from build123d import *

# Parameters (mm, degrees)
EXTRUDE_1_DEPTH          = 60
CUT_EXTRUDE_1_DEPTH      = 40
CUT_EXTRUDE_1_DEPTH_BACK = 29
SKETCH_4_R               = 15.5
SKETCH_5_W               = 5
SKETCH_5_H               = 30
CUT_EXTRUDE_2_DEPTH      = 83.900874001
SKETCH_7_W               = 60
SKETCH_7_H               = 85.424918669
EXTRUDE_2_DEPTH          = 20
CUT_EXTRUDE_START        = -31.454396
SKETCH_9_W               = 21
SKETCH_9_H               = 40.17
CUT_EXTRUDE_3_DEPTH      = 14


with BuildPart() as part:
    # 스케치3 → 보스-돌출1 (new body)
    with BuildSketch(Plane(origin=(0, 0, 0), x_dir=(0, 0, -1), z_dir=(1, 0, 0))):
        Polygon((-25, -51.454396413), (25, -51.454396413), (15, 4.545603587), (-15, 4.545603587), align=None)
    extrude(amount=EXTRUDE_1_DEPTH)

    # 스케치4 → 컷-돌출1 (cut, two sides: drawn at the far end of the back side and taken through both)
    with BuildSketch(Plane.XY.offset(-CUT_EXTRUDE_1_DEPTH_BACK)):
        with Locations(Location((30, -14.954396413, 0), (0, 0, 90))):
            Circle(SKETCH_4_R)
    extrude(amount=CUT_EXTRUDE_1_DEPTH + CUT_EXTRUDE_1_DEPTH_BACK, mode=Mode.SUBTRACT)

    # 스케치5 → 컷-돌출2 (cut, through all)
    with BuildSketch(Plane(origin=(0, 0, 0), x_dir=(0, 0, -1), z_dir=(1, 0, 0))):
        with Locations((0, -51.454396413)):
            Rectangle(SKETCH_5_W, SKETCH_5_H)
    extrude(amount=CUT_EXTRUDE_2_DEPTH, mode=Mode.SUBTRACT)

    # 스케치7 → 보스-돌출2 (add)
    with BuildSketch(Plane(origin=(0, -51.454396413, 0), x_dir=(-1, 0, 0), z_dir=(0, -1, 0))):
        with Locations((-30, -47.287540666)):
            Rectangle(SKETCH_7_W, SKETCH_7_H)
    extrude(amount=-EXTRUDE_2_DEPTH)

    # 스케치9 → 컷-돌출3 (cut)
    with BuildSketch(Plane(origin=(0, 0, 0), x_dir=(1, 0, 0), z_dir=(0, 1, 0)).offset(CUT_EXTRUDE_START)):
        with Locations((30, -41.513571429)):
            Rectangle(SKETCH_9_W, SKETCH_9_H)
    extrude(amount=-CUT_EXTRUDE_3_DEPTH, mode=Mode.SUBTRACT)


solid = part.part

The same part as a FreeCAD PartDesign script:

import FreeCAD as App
import Part
import Sketcher
from FreeCAD import Vector
Q = App.Units.Quantity


def add_polygon(sketch, points):
    """Adds a closed chain of lines whose ends are joined by coincident constraints."""
    first, n = sketch.GeometryCount, len(points)
    for a, b in zip(points, points[1:] + points[:1]):
        sketch.addGeometry(Part.LineSegment(App.Vector(*a, 0), App.Vector(*b, 0)), False)
    for i in range(n):
        sketch.addConstraint(Sketcher.Constraint("Coincident", first + i, 2, first + (i + 1) % n, 1))

doc = App.newDocument("Part")
body = doc.addObject("PartDesign::Body", "Body")

sketch1 = body.newObject("Sketcher::SketchObject", "Sketch")
sketch1.AttachmentSupport = (doc.getObject("YZ_Plane"), [""])
sketch1.MapMode = "FlatFace"
add_polygon(sketch1, [(-51, 25), (-51, -25), (5, -15), (5, 15)])
sketch1.addConstraint([
    Sketcher.Constraint("Vertical", 0),
    Sketcher.Constraint("Vertical", 2),
    Sketcher.Constraint("Equal", 1, 3),
    Sketcher.Constraint("DistanceY", 0, 2, 0, 1, Q("50 mm")),
    Sketcher.Constraint("DistanceY", 2, 1, 2, 2, Q("30 mm")),
    Sketcher.Constraint("DistanceY", 0, 2, -1, 1, Q("25 mm")),
    Sketcher.Constraint("DistanceX", 0, 2, 1, 2, Q("56 mm")),
    Sketcher.Constraint("DistanceX", 0, 2, -1, 1, Q("51.454396 mm")),
])
pad1 = body.newObject("PartDesign::Pad", "Pad")
pad1.Profile = sketch1
pad1.Length = 60

sketch2 = body.newObject("Sketcher::SketchObject", "Sketch001")
sketch2.AttachmentSupport = (doc.getObject("XY_Plane"), [""])
sketch2.MapMode = "FlatFace"
sketch2.addGeometry(Part.Circle(Vector(30, -15, 0), Vector(0, 0, 1), 16), False)
sketch2.addConstraint([
    Sketcher.Constraint("Diameter", 0, Q("31 mm")),
    Sketcher.Constraint("DistanceX", -1, 1, 0, 3, Q("30 mm")),
    Sketcher.Constraint("DistanceY", 0, 3, -1, 1, Q("14.954396 mm")),
])
pocket1 = body.newObject("PartDesign::Pocket", "Pocket")
pocket1.Profile = sketch2
pocket1.Type = "ThroughAll"
pocket1.Midplane = True

sketch3 = body.newObject("Sketcher::SketchObject", "Sketch002")
sketch3.AttachmentSupport = (doc.getObject("YZ_Plane"), [""])
sketch3.MapMode = "FlatFace"
add_polygon(sketch3, [(-36, 2), (-66, 2), (-66, -2), (-36, -2)])
sketch3.addConstraint([
    Sketcher.Constraint("Horizontal", 0),
    Sketcher.Constraint("Vertical", 1),
    Sketcher.Constraint("Horizontal", 2),
    Sketcher.Constraint("Vertical", 3),
    Sketcher.Constraint("DistanceX", 0, 2, 0, 1, Q("30 mm")),
    Sketcher.Constraint("DistanceY", 1, 2, 1, 1, Q("5 mm")),
    Sketcher.Constraint("DistanceY", -1, 1, 0, 2, Q("2.5 mm")),
    Sketcher.Constraint("DistanceX", 0, 2, -1, 1, Q("66.454396 mm")),
])
pocket2 = body.newObject("PartDesign::Pocket", "Pocket001")
pocket2.Profile = sketch3
pocket2.Type = "ThroughAll"
pocket2.Reversed = True

sketch4 = body.newObject("Sketcher::SketchObject", "Sketch003")
sketch4.AttachmentSupport = (doc.getObject("XZ_Plane"), [""])
sketch4.MapMode = "FlatFace"
sketch4.AttachmentOffset = App.Placement(Vector(0, 0, 51.454396), App.Rotation())
add_polygon(sketch4, [(60, 5), (60, 90), (0, 90), (0, 5)])
sketch4.addConstraint([
    Sketcher.Constraint("Vertical", 0),
    Sketcher.Constraint("Horizontal", 1),
    Sketcher.Constraint("Vertical", 2),
    Sketcher.Constraint("Horizontal", 3),
    Sketcher.Constraint("PointOnObject", 1, 2, -2),
    Sketcher.Constraint("DistanceX", 1, 2, 1, 1, Q("60 mm")),
    Sketcher.Constraint("DistanceY", -1, 1, 0, 2, Q("90 mm")),
    Sketcher.Constraint("DistanceY", 0, 1, 0, 2, Q("85.424919 mm")),
])
pad2 = body.newObject("PartDesign::Pad", "Pad001")
pad2.Profile = sketch4
pad2.Length = 20
pad2.Reversed = True

sketch5 = body.newObject("Sketcher::SketchObject", "Sketch004")
sketch5.AttachmentSupport = (doc.getObject("XZ_Plane"), [""])
sketch5.MapMode = "FlatFace"
sketch5.AttachmentOffset = App.Placement(Vector(0, 0, 31.454396), App.Rotation())
add_polygon(sketch5, [(20, 21), (20, 62), (40, 62), (40, 21)])
sketch5.addConstraint([
    Sketcher.Constraint("Vertical", 0),
    Sketcher.Constraint("Horizontal", 1),
    Sketcher.Constraint("Vertical", 2),
    Sketcher.Constraint("Horizontal", 3),
    Sketcher.Constraint("DistanceX", 1, 1, 1, 2, Q("21 mm")),
    Sketcher.Constraint("DistanceY", 0, 1, 0, 2, Q("40.17 mm")),
    Sketcher.Constraint("DistanceX", -1, 1, 0, 2, Q("19.5 mm")),
    Sketcher.Constraint("DistanceY", -1, 1, 0, 2, Q("61.598571 mm")),
])
pocket3 = body.newObject("PartDesign::Pocket", "Pocket002")
pocket3.Profile = sketch5
pocket3.Length = 14
pocket3.Reversed = True

doc.recompute()
